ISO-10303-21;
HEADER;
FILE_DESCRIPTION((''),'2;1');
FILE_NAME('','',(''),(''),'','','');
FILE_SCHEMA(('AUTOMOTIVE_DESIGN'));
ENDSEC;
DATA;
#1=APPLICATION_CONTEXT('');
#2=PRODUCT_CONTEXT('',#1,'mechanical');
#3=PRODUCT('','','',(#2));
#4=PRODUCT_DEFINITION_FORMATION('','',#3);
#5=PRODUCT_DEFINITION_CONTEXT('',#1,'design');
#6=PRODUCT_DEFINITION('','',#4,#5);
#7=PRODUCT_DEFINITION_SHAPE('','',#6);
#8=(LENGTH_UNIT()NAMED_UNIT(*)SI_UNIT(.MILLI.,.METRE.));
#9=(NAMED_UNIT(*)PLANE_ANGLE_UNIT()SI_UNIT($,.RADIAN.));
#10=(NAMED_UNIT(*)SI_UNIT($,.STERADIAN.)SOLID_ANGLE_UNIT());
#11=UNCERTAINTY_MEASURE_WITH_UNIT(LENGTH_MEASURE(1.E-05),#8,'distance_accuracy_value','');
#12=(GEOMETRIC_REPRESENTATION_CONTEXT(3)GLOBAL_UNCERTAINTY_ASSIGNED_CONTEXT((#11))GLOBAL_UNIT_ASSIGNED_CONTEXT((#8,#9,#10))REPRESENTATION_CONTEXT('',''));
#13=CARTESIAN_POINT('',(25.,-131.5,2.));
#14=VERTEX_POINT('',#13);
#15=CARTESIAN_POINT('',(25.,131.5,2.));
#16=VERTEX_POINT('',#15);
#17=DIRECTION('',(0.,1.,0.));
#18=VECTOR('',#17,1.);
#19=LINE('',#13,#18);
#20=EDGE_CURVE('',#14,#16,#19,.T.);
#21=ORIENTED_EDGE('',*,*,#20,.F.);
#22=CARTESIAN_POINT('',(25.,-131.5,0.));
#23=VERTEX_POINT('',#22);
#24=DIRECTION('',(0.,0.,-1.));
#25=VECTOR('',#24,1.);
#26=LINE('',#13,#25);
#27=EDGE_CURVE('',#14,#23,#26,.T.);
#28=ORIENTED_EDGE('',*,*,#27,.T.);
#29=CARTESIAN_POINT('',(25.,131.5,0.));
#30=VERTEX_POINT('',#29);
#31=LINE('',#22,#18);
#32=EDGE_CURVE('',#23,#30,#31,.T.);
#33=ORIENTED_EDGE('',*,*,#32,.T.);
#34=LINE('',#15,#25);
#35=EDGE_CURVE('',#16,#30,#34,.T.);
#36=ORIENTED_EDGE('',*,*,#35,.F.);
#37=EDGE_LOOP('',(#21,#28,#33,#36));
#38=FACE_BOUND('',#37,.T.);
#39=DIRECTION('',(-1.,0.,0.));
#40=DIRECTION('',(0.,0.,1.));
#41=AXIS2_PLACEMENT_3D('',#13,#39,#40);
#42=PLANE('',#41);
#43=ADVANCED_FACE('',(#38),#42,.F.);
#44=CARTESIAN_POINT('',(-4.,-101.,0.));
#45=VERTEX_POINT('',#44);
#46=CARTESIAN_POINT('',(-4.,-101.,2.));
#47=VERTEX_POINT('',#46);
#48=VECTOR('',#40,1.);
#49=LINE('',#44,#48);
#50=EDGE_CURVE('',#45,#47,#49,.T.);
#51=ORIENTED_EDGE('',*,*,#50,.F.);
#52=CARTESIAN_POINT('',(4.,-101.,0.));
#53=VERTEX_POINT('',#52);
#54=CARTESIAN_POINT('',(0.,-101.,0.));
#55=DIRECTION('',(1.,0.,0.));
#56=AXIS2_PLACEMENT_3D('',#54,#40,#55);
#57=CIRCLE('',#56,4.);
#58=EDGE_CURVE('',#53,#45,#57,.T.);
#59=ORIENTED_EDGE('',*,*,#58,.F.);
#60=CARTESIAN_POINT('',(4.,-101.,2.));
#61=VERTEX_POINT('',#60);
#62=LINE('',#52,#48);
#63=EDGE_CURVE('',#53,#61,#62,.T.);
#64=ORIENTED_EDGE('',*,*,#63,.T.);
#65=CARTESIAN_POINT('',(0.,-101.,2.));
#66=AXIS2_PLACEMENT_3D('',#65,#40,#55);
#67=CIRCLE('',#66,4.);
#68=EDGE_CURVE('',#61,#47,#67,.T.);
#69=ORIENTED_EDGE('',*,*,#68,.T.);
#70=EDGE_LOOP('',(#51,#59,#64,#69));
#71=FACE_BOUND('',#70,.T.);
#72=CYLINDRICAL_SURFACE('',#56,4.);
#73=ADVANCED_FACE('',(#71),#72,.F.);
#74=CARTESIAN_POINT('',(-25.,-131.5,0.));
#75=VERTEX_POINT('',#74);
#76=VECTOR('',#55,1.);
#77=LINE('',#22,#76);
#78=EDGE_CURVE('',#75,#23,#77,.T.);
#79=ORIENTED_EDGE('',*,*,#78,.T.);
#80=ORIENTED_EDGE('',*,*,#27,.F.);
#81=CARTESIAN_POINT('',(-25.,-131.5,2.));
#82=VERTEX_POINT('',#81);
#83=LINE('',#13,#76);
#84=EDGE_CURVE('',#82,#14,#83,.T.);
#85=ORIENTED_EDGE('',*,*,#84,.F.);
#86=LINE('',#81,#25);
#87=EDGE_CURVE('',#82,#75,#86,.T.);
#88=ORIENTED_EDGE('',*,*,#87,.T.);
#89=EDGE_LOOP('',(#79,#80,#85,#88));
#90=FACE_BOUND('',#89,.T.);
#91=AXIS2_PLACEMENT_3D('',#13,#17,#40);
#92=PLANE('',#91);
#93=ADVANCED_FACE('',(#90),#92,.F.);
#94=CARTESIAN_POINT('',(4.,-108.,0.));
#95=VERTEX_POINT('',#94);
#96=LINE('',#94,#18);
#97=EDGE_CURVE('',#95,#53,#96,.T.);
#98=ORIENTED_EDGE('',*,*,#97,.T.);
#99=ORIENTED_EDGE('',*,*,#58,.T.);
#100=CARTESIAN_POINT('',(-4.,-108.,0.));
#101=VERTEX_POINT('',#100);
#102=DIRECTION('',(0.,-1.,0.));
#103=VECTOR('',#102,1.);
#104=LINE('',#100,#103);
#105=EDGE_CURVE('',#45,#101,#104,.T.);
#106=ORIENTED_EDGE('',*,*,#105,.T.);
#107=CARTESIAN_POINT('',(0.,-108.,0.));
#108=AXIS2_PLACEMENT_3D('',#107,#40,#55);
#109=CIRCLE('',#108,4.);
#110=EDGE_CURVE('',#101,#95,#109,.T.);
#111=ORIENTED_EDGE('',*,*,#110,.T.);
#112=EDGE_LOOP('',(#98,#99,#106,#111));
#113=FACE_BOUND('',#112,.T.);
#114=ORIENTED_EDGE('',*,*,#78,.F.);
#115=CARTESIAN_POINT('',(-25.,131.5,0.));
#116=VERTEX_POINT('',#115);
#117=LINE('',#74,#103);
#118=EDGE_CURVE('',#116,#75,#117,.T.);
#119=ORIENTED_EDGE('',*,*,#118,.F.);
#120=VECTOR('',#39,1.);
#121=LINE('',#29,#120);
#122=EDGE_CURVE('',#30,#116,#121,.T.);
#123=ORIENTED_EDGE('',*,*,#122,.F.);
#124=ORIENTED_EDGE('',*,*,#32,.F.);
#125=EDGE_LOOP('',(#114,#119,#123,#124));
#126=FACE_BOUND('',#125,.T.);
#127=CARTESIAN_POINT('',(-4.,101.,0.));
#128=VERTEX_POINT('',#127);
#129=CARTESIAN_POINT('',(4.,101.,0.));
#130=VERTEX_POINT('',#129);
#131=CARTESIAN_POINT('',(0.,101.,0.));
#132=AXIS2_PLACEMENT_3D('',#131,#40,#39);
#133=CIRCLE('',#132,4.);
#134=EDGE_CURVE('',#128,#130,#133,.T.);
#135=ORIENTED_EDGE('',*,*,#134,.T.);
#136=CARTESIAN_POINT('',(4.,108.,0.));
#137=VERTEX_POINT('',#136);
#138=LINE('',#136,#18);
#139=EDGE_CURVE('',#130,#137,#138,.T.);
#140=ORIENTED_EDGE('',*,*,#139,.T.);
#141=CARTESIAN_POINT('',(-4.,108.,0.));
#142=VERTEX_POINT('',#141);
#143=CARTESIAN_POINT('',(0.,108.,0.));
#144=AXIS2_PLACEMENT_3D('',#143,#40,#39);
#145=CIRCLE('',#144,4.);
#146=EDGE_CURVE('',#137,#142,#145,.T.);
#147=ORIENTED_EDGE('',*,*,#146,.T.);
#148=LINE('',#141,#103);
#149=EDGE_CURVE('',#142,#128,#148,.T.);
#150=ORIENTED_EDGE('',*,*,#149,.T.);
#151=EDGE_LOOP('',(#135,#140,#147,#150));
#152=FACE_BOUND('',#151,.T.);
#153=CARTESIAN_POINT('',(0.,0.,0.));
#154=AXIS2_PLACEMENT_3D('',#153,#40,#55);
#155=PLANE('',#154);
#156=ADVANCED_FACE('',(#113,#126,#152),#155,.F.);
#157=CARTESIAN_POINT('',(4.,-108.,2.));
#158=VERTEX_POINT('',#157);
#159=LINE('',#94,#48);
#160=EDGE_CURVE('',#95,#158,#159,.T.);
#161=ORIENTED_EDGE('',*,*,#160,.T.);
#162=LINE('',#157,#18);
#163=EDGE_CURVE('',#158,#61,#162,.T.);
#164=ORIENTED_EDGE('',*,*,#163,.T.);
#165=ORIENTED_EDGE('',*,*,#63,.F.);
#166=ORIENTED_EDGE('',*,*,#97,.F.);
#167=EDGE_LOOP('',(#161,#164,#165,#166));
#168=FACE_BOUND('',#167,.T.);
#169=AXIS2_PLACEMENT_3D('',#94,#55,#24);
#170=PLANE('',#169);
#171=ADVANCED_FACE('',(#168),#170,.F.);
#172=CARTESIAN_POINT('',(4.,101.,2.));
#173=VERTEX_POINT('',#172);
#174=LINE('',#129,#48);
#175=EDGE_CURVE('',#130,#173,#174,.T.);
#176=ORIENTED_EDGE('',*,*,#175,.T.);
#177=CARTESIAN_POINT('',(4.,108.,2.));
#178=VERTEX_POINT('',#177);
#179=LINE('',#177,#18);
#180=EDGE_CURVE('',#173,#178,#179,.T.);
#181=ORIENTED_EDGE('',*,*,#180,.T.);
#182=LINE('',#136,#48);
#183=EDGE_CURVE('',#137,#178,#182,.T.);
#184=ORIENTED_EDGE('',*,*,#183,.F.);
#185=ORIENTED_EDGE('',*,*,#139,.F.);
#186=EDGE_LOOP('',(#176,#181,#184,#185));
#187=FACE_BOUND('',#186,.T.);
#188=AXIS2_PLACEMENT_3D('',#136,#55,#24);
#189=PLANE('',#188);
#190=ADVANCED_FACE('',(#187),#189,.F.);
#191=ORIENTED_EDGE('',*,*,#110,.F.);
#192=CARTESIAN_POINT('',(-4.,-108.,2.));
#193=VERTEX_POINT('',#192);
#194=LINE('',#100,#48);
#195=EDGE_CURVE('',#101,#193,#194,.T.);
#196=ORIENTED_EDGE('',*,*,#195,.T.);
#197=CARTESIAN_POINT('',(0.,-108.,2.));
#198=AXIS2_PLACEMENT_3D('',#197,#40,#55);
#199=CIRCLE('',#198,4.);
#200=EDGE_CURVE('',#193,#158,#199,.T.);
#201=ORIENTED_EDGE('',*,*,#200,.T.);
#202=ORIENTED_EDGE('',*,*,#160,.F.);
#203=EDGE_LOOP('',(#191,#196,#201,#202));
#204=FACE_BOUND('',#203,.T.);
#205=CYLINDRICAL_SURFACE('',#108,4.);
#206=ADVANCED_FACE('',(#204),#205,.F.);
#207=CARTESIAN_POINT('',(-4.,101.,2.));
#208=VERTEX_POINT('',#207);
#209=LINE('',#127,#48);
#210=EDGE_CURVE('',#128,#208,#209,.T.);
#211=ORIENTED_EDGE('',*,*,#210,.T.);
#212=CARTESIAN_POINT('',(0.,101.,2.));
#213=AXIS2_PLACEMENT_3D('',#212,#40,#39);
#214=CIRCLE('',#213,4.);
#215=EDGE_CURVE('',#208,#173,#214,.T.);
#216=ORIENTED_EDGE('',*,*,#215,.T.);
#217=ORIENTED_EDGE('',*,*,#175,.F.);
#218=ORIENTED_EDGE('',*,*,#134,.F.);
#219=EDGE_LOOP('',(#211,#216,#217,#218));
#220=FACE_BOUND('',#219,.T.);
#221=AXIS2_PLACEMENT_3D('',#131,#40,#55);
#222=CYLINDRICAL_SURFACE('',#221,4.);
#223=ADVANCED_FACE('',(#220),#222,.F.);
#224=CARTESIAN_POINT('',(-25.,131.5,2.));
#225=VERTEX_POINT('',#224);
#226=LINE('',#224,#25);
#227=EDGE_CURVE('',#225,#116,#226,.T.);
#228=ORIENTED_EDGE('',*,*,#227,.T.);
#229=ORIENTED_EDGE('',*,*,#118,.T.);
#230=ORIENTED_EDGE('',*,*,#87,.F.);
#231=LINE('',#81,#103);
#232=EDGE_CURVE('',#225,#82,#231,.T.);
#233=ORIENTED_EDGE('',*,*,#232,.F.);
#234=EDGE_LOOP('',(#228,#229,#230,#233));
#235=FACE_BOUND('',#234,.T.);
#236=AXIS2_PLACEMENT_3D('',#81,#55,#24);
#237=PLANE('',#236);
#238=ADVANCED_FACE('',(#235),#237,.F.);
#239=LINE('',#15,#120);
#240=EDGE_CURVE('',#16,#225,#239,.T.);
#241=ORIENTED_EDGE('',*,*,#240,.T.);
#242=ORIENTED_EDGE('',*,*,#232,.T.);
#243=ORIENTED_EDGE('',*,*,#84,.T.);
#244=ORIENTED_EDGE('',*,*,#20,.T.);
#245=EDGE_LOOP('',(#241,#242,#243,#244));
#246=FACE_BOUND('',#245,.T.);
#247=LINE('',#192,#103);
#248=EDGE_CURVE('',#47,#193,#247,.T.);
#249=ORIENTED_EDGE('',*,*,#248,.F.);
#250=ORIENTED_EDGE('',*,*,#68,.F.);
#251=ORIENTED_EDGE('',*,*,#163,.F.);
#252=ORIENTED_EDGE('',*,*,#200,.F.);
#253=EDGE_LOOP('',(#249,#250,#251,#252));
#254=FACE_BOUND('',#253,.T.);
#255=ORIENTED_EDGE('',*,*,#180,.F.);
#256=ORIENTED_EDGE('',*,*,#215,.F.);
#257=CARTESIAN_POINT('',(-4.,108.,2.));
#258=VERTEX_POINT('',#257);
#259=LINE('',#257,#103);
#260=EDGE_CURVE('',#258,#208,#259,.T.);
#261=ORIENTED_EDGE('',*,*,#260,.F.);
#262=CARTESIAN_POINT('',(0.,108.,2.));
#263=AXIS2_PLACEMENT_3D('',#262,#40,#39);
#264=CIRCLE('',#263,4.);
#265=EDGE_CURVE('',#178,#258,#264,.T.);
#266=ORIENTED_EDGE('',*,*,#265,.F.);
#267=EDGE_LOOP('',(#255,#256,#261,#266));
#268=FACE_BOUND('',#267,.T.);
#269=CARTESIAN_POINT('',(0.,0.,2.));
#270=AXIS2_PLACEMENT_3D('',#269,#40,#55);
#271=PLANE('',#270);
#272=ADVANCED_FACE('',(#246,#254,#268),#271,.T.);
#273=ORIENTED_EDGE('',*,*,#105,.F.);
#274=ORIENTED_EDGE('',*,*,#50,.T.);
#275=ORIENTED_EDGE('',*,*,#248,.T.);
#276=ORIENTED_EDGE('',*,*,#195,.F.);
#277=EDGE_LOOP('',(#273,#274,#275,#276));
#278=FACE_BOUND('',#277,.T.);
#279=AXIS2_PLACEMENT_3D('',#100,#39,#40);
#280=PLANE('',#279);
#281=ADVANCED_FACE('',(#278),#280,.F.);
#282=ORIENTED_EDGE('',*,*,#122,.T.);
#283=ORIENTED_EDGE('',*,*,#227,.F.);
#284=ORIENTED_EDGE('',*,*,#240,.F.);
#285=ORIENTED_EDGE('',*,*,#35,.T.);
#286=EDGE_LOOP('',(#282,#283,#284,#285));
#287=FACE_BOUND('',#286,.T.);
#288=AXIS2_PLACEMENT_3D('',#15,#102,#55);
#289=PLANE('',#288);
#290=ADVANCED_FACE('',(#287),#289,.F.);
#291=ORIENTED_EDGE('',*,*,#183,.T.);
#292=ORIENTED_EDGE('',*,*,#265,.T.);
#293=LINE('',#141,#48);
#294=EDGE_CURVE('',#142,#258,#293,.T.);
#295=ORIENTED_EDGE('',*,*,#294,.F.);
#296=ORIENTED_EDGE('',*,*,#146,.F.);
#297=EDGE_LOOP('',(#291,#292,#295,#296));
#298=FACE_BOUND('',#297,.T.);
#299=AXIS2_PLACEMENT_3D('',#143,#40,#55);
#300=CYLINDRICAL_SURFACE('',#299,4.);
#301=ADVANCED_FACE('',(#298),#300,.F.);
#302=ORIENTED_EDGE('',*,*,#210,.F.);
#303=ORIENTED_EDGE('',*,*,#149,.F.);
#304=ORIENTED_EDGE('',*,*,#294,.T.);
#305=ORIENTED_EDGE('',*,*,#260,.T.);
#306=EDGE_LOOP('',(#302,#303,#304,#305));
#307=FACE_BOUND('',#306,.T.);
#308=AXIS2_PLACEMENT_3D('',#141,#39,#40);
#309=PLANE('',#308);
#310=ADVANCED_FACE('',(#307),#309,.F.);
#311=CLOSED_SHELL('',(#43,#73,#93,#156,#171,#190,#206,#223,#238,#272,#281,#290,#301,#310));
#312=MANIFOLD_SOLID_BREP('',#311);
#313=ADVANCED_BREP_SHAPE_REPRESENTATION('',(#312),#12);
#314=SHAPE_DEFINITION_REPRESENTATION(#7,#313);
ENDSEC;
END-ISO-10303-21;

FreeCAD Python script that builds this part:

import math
import FreeCAD as App
import Part
import Sketcher
from FreeCAD import Vector

doc = App.newDocument("Part")
body = doc.addObject("PartDesign::Body", "Body")

sketch1 = doc.addObject("Sketcher::SketchObject", "Sketch")
body.addObject(sketch1)
sketch1.AttachmentSupport = (doc.XY_Plane, [""])
sketch1.MapMode = "FlatFace"
sketch1.addGeometry([
    Part.LineSegment(Vector(-25, 132, 0), Vector(-25, -132, 0)),
    Part.LineSegment(Vector(-25, -132, 0), Vector(25, -132, 0)),
    Part.LineSegment(Vector(25, -132, 0), Vector(25, 132, 0)),
    Part.LineSegment(Vector(25, 132, 0), Vector(-25, 132, 0)),
], False)
sketch1.addConstraint([
    Sketcher.Constraint("Coincident", 0, 2, 1, 1),
    Sketcher.Constraint("Coincident", 1, 2, 2, 1),
    Sketcher.Constraint("Coincident", 2, 2, 3, 1),
    Sketcher.Constraint("Coincident", 3, 2, 0, 1),
    Sketcher.Constraint("Vertical", 0),
    Sketcher.Constraint("Horizontal", 1),
    Sketcher.Constraint("Vertical", 2),
    Sketcher.Constraint("Horizontal", 3),
    Sketcher.Constraint("Symmetric", 0, 2, 2, 2, -1, 1),
    Sketcher.Constraint("DistanceX", 1, 1, 1, 2, 50.0),
    Sketcher.Constraint("DistanceY", 0, 2, 0, 1, 263.0),
])
pad1 = doc.addObject("PartDesign::Pad", "Pad")
body.addObject(pad1)
pad1.Profile = sketch1
pad1.Length = 2

sketch2 = doc.addObject("Sketcher::SketchObject", "Sketch001")
body.addObject(sketch2)
sketch2.AttachmentSupport = (doc.XY_Plane, [""])
sketch2.MapMode = "FlatFace"
sketch2.AttachmentOffset = App.Placement(Vector(0, 0, 2), App.Rotation())
sketch2.addGeometry([
    Part.LineSegment(Vector(-4, -101, 0), Vector(-4, -108, 0)),
    Part.ArcOfCircle(Part.Circle(Vector(0, -108, 0), Vector(0, 0, 1), 4), math.radians(180), math.radians(360)),
    Part.LineSegment(Vector(4, -108, 0), Vector(4, -101, 0)),
    Part.ArcOfCircle(Part.Circle(Vector(0, -101, 0), Vector(0, 0, 1), 4), math.radians(0), math.radians(180)),
    Part.LineSegment(Vector(-4, 108, 0), Vector(-4, 101, 0)),
    Part.ArcOfCircle(Part.Circle(Vector(0, 101, 0), Vector(0, 0, 1), 4), math.radians(180), math.radians(360)),
    Part.LineSegment(Vector(4, 101, 0), Vector(4, 108, 0)),
    Part.ArcOfCircle(Part.Circle(Vector(0, 108, 0), Vector(0, 0, 1), 4), math.radians(0), math.radians(180)),
], False)
sketch2.addConstraint([
    Sketcher.Constraint("Tangent", 0, 2, 1, 1),
    Sketcher.Constraint("Tangent", 1, 2, 2, 1),
    Sketcher.Constraint("Tangent", 2, 2, 3, 1),
    Sketcher.Constraint("Tangent", 3, 2, 0, 1),
    Sketcher.Constraint("Tangent", 4, 2, 5, 1),
    Sketcher.Constraint("Tangent", 5, 2, 6, 1),
    Sketcher.Constraint("Tangent", 6, 2, 7, 1),
    Sketcher.Constraint("Tangent", 7, 2, 4, 1),
    Sketcher.Constraint("Vertical", 0),
    Sketcher.Constraint("Vertical", 2),
    Sketcher.Constraint("Vertical", 4),
    Sketcher.Constraint("Vertical", 6),
    Sketcher.Constraint("Equal", 3, 5),
    Sketcher.Constraint("Symmetric", 3, 3, 5, 3, -1, 1),
    Sketcher.Constraint("Symmetric", 1, 3, 7, 3, -1),
    Sketcher.Constraint("Radius", 1, 4.0),
    Sketcher.Constraint("DistanceY", 0, 2, 0, 1, 7.0),
    Sketcher.Constraint("DistanceY", 1, 3, -1, 1, 108.0),
])
pocket1 = doc.addObject("PartDesign::Pocket", "Pocket")
body.addObject(pocket1)
pocket1.Profile = sketch2
pocket1.Type = "ThroughAll"

doc.recompute()
